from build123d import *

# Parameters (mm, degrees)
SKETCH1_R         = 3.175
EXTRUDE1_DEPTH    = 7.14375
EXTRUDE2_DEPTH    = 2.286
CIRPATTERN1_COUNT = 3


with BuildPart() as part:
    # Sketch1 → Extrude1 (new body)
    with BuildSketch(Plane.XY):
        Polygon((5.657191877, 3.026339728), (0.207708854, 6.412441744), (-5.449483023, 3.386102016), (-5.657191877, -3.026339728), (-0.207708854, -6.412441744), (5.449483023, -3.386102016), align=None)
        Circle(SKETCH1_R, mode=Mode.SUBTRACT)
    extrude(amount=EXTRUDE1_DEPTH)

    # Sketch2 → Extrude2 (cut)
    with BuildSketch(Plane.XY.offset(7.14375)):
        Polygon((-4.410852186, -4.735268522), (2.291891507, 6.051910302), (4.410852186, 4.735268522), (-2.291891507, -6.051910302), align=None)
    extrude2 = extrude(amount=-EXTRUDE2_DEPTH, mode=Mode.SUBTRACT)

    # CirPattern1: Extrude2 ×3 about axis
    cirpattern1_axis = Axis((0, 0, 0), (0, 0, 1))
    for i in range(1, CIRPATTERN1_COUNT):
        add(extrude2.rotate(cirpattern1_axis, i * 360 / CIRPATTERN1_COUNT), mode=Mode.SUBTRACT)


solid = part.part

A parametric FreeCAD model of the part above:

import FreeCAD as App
import Part
import Sketcher
from FreeCAD import Vector
Q = App.Units.Quantity


def add_polygon(sketch, points):
    """Adds a closed chain of lines whose ends are joined by coincident constraints."""
    first, n = sketch.GeometryCount, len(points)
    for a, b in zip(points, points[1:] + points[:1]):
        sketch.addGeometry(Part.LineSegment(App.Vector(*a, 0), App.Vector(*b, 0)), False)
    for i in range(n):
        sketch.addConstraint(Sketcher.Constraint("Coincident", first + i, 2, first + (i + 1) % n, 1))

doc = App.newDocument("Part")
body = doc.addObject("PartDesign::Body", "Body")

# Sketch on XY plane
sketch1 = doc.addObject("Sketcher::SketchObject", "Sketch")
body.addObject(sketch1)
sketch1.AttachmentSupport = (doc.XY_Plane, [""])
sketch1.MapMode = "FlatFace"
add_polygon(sketch1, [(5.7, 3), (0.2, 6.4), (-5.4, 3.4), (-5.7, -3), (-0.2, -6.4), (5.4, -3.4)])  # lines 0-5
sketch1.addGeometry(Part.Circle(Vector(0, 0, 0), Vector(0, 0, 1), 3.2), False)  # 6
sketch1.addConstraint(Sketcher.Constraint("Coincident", 6, 3, -1, 1))
sketch1.addConstraint(Sketcher.Constraint("Symmetric", 0, 2, 3, 2, -1, 1))
sketch1.addConstraint(Sketcher.Constraint("Symmetric", 1, 2, 4, 2, -1, 1))
sketch1.addConstraint(Sketcher.Constraint("Symmetric", 2, 2, 5, 2, -1, 1))
sketch1.addConstraint(Sketcher.Constraint("Equal", 0, 1))
sketch1.addConstraint(Sketcher.Constraint("Equal", 1, 2))
sketch1.addConstraint(Sketcher.Constraint("Diameter", 6, Q("0.25 in")))
sketch1.addConstraint(Sketcher.Constraint("DistanceX", 2, 2, 0, 2, 5.864901))
sketch1.addConstraint(Sketcher.Constraint("DistanceX", -1, 1, 0, 2, 0.207709))
sketch1.addConstraint(Sketcher.Constraint("DistanceY", -1, 1, 0, 2, 6.412442))
sketch1.addConstraint(Sketcher.Constraint("DistanceY", 2, 2, -1, 1, 3.02634))
pad1 = doc.addObject("PartDesign::Pad", "Pad")
body.addObject(pad1)
pad1.Profile = sketch1
pad1.Length = Q("0.28125 in")

# Sketch on XY plane
sketch2 = doc.addObject("Sketcher::SketchObject", "Sketch001")
body.addObject(sketch2)
sketch2.AttachmentSupport = (doc.XY_Plane, [""])
sketch2.MapMode = "FlatFace"
sketch2.AttachmentOffset = App.Placement(Vector(0, 0, 0.28125 * 25.4), App.Rotation())
add_polygon(sketch2, [(2.3, 6.1), (-4.4, -4.7), (-2.3, -6.1), (4.4, 4.7)])  # lines 0-3
sketch2.addConstraint(Sketcher.Constraint("Symmetric", 0, 2, 2, 2, -1, 1))
sketch2.addConstraint(Sketcher.Constraint("Symmetric", 1, 2, 3, 2, -1, 1))
sketch2.addConstraint(Sketcher.Constraint("Perpendicular", 0, 1))
sketch2.addConstraint(Sketcher.Constraint("Distance", 0, Q("0.5 in")))
sketch2.addConstraint(Sketcher.Constraint("DistanceY", 0, 2, -1, 1, 4.735269))
sketch2.addConstraint(Sketcher.Constraint("DistanceX", 1, 2, -1, 1, 2.291892))
pocket1 = doc.addObject("PartDesign::Pocket", "Pocket")
body.addObject(pocket1)
pocket1.Profile = sketch2
pocket1.Length = Q("0.09 in")
doc.recompute()

polarpattern = doc.addObject("PartDesign::PolarPattern", "PolarPattern")
body.addObject(polarpattern)
polarpattern.Originals = [pocket1]
polarpattern.Axis = (doc.Z_Axis, [""])
polarpattern.Angle = 360
polarpattern.Occurrences = 3
body.Tip = polarpattern

doc.recompute()
